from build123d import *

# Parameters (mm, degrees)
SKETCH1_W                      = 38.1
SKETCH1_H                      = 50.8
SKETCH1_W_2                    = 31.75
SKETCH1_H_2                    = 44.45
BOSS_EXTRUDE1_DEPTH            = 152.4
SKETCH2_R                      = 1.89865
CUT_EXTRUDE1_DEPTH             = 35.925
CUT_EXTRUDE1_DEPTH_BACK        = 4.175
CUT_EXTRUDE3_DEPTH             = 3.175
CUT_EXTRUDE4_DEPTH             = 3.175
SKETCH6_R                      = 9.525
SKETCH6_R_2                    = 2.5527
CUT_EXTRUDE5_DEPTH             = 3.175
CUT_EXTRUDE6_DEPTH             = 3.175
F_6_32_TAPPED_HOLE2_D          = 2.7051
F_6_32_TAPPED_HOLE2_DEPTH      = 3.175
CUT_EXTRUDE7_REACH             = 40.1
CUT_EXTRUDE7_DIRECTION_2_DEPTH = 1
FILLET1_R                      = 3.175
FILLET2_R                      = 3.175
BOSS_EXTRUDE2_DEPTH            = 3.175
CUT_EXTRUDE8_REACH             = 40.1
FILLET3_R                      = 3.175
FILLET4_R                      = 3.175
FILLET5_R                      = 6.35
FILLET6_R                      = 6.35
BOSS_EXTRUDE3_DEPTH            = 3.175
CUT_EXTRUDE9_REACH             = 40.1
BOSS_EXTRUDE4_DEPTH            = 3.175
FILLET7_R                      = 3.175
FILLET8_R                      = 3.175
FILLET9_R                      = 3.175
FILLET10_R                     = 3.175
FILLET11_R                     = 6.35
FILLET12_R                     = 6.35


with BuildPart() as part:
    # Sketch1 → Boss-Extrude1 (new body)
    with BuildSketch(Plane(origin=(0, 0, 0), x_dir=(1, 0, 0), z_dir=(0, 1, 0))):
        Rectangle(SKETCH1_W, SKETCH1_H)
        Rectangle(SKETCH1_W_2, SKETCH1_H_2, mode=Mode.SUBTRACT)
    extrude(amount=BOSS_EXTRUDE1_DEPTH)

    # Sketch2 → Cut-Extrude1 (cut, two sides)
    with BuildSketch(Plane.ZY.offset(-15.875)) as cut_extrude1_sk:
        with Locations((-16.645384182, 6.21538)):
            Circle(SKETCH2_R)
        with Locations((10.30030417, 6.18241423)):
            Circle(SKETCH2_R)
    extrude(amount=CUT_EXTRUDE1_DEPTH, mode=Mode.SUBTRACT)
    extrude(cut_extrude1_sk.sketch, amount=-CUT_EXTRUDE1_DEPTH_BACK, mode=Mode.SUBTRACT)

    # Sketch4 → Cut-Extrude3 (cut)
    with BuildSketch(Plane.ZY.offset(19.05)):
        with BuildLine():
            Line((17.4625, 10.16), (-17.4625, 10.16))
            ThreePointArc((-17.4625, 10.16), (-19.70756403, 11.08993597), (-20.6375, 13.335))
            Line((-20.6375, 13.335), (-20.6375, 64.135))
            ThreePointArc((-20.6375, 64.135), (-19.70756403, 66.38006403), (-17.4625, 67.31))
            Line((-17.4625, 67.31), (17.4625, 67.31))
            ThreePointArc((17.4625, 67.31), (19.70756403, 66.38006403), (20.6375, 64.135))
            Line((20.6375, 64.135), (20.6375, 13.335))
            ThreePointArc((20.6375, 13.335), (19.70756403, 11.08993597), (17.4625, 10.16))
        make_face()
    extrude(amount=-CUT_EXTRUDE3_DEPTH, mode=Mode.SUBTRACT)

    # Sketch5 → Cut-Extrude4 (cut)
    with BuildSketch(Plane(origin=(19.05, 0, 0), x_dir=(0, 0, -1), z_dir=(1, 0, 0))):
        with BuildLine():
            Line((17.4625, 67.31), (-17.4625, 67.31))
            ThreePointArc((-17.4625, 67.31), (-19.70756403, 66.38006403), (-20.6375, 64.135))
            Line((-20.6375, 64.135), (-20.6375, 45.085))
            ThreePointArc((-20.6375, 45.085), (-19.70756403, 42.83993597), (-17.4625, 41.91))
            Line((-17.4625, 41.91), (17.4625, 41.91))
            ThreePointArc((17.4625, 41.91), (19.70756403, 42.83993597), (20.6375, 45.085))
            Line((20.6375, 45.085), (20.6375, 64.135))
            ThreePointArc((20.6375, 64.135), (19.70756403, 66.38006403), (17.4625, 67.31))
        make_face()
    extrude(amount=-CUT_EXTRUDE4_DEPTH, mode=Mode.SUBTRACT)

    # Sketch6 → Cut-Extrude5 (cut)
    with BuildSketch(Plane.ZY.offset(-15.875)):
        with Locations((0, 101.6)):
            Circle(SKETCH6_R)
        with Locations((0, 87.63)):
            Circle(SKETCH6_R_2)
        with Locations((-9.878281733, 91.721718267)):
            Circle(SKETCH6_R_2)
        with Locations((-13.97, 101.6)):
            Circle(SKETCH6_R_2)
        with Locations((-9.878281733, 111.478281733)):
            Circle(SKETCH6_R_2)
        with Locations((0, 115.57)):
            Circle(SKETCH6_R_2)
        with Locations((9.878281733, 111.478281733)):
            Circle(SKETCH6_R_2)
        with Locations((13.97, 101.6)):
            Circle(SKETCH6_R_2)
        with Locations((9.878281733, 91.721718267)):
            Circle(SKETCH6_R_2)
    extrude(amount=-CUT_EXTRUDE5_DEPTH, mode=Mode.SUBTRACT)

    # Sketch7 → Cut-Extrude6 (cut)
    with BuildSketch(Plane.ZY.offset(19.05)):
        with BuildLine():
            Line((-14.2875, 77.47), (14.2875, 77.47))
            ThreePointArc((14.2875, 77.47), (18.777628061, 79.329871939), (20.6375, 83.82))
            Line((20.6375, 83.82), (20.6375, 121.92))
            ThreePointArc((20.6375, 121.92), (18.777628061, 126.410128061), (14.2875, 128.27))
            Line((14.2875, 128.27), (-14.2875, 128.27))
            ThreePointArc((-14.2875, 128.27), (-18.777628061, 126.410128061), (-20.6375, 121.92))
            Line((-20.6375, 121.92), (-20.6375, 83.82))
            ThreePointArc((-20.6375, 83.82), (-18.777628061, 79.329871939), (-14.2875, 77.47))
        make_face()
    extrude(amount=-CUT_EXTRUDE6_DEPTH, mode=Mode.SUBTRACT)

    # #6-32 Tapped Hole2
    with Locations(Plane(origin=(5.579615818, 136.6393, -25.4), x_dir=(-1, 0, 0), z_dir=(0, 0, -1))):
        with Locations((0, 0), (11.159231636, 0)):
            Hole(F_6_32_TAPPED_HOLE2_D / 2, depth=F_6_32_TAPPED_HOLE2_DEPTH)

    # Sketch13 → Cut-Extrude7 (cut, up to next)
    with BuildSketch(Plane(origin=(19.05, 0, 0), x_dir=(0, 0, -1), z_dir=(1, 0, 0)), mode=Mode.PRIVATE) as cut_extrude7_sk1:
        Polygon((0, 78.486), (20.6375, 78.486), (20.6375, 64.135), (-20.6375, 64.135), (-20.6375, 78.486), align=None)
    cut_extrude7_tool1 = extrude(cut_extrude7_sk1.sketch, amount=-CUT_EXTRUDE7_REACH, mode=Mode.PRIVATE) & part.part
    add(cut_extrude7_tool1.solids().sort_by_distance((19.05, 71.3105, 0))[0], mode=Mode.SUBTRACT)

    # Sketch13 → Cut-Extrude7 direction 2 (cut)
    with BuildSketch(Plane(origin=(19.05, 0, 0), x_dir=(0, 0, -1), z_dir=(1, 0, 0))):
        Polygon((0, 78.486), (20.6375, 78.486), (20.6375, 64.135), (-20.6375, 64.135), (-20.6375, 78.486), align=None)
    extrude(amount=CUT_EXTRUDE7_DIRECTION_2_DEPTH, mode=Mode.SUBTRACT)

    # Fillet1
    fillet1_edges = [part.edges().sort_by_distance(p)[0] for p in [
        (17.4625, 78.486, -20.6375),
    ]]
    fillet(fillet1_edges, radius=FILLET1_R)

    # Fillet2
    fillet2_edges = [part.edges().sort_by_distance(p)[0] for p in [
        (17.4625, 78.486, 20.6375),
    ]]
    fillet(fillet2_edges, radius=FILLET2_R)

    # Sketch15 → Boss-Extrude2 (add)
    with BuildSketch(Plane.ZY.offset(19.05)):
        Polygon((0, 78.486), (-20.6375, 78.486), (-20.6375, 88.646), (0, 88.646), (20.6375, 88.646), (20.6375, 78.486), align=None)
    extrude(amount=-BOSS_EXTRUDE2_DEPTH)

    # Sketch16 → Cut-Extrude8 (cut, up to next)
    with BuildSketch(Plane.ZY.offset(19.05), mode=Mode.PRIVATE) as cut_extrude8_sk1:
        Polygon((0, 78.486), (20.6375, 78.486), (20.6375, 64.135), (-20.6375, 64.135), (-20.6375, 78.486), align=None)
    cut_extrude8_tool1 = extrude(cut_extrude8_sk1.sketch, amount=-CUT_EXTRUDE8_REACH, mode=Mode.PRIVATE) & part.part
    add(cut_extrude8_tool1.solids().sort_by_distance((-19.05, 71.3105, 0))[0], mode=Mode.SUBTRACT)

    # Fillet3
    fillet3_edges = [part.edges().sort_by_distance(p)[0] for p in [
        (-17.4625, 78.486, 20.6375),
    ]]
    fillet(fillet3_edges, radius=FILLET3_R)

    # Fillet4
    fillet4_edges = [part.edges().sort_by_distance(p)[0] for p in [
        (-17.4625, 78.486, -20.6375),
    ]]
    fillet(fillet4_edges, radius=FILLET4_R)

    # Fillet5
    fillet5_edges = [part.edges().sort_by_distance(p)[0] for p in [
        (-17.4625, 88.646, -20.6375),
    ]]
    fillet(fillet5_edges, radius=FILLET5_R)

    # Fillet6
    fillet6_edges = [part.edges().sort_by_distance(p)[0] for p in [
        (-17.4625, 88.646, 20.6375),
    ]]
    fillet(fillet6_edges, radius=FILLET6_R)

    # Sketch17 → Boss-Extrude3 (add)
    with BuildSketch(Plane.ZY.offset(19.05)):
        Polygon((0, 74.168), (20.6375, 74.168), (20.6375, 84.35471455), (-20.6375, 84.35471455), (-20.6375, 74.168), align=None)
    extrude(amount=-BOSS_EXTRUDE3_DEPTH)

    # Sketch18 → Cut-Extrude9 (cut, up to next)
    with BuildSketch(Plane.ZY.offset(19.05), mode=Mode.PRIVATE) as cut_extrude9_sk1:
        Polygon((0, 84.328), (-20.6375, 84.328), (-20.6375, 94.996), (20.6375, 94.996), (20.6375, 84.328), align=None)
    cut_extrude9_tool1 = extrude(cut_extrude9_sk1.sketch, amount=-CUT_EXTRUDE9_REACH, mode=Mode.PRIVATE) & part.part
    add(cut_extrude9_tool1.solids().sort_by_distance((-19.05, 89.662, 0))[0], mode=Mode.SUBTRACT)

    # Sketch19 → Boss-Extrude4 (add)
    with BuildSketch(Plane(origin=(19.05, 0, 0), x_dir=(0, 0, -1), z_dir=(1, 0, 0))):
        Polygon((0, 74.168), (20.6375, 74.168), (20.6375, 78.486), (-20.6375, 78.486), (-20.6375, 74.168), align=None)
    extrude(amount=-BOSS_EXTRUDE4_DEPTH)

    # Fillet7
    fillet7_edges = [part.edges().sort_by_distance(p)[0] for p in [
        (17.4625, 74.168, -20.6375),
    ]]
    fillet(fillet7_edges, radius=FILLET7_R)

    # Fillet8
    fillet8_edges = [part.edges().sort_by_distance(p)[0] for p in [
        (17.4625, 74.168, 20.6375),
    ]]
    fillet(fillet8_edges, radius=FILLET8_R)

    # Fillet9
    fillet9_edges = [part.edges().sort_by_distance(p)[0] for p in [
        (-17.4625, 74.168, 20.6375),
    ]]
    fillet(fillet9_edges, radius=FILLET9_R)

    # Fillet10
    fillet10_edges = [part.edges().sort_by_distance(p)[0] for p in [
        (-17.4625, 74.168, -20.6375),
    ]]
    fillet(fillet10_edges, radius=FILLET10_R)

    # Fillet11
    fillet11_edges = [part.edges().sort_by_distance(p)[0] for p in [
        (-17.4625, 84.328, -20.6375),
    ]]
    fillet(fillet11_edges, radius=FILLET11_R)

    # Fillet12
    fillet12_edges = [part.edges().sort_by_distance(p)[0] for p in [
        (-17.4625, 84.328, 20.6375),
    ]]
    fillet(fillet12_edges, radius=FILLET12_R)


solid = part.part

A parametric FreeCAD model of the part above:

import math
import FreeCAD as App
import Part
import Sketcher

V = App.Vector
Q = App.Units.Quantity


def edges_at(feature, points):
    """Names of the edges that pass closest to the given points."""
    edges = feature.Shape.Edges
    near = lambda p: min(range(len(edges)), key=lambda i: edges[i].distToShape(Part.Vertex(*p))[0])
    return sorted({f"Edge{near(p) + 1}" for p in points})


def add_polygon(sketch, points):
    """Adds a closed chain of lines whose ends are joined by coincident constraints."""
    first, n = sketch.GeometryCount, len(points)
    for a, b in zip(points, points[1:] + points[:1]):
        sketch.addGeometry(Part.LineSegment(App.Vector(*a, 0), App.Vector(*b, 0)), False)
    for i in range(n):
        sketch.addConstraint(Sketcher.Constraint("Coincident", first + i, 2, first + (i + 1) % n, 1))

doc = App.newDocument("Part")
body = doc.addObject("PartDesign::Body", "Body")

# Sketch on XZ plane
sketch1 = doc.addObject("Sketcher::SketchObject", "Sketch")
body.addObject(sketch1)
sketch1.AttachmentSupport = (doc.XZ_Plane, [""])
sketch1.MapMode = "FlatFace"
add_polygon(sketch1, [(-19.05, -25.4), (-19.05, 25.4), (19.05, 25.4), (19.05, -25.4)])  # lines 0-3
add_polygon(sketch1, [(15.875, 22.225), (-15.875, 22.225), (-15.875, -22.225), (15.875, -22.225)])  # lines 4-7
sketch1.addConstraint(Sketcher.Constraint("Vertical", 0))
sketch1.addConstraint(Sketcher.Constraint("Horizontal", 1))
sketch1.addConstraint(Sketcher.Constraint("Vertical", 2))
sketch1.addConstraint(Sketcher.Constraint("Horizontal", 3))
sketch1.addConstraint(Sketcher.Constraint("Horizontal", 4))
sketch1.addConstraint(Sketcher.Constraint("Vertical", 5))
sketch1.addConstraint(Sketcher.Constraint("Horizontal", 6))
sketch1.addConstraint(Sketcher.Constraint("Vertical", 7))
sketch1.addConstraint(Sketcher.Constraint("Symmetric", 0, 2, 2, 2, -1, 1))
sketch1.addConstraint(Sketcher.Constraint("Symmetric", 4, 2, 6, 2, -1, 1))
sketch1.addConstraint(Sketcher.Constraint("DistanceY", 0, 1, 0, 2, Q("2 in")))
sketch1.addConstraint(Sketcher.Constraint("DistanceX", 1, 1, 1, 2, Q("1.5 in")))
sketch1.addConstraint(Sketcher.Constraint("DistanceX", 4, 2, 4, 1, Q("1.25 in")))
sketch1.addConstraint(Sketcher.Constraint("DistanceY", 5, 2, 5, 1, Q("1.75 in")))
pad1 = doc.addObject("PartDesign::Pad", "Pad")
body.addObject(pad1)
pad1.Profile = sketch1
pad1.Length = Q("6 in")
pad1.Reversed = True

# Sketch on YZ plane
sketch2 = doc.addObject("Sketcher::SketchObject", "Sketch001")
body.addObject(sketch2)
sketch2.AttachmentSupport = (doc.YZ_Plane, [""])
sketch2.MapMode = "FlatFace"
sketch2.AttachmentOffset = App.Placement(V(0, 0, 0.625 * 25.4), App.Rotation())
sketch2.addGeometry(Part.Circle(V(6.21538, -16.645384, 0), V(0, 0, 1), 1.89865), False)
sketch2.addGeometry(Part.Circle(V(6.182414, 10.300304, 0), V(0, 0, 1), 1.89865), False)
sketch2.addConstraint(Sketcher.Constraint("Equal", 0, 1))
sketch2.addConstraint(Sketcher.Constraint("Diameter", 0, Q("0.1495 in")))
sketch2.addConstraint(Sketcher.Constraint("DistanceX", -1, 1, 0, 3, Q("0.2447 in")))
sketch2.addConstraint(Sketcher.Constraint("DistanceY", 0, 3, 1, 3, 26.945688))
sketch2.addConstraint(Sketcher.Constraint("DistanceY", 0, 3, -1, 1, 16.645384))
sketch2.addConstraint(Sketcher.Constraint("DistanceX", -1, 1, 1, 3, 6.182414))
pocket1 = doc.addObject("PartDesign::Pocket", "Pocket")
body.addObject(pocket1)
pocket1.Profile = sketch2
pocket1.Type = "ThroughAll"
pocket1.Midplane = True

# Sketch on YZ plane
sketch3 = doc.addObject("Sketcher::SketchObject", "Sketch002")
body.addObject(sketch3)
sketch3.AttachmentSupport = (doc.YZ_Plane, [""])
sketch3.MapMode = "FlatFace"
sketch3.AttachmentOffset = App.Placement(V(0, 0, -0.75 * 25.4), App.Rotation())
sketch3.addGeometry(Part.LineSegment(V(10.16, -17.4625, 0), V(10.16, 17.4625, 0)), False)
sketch3.addGeometry(Part.ArcOfCircle(Part.Circle(V(13.335, 17.4625, 0), V(0, 0, 1), 3.175), math.radians(90), math.radians(180)), False)
sketch3.addGeometry(Part.LineSegment(V(13.335, 20.6375, 0), V(64.135, 20.6375, 0)), False)
sketch3.addGeometry(Part.ArcOfCircle(Part.Circle(V(64.135, 17.4625, 0), V(0, 0, 1), 3.175), math.radians(0), math.radians(90)), False)
sketch3.addGeometry(Part.LineSegment(V(67.31, 17.4625, 0), V(67.31, -17.4625, 0)), False)
sketch3.addGeometry(Part.ArcOfCircle(Part.Circle(V(64.135, -17.4625, 0), V(0, 0, 1), 3.175), math.radians(-90), math.radians(0)), False)
sketch3.addGeometry(Part.LineSegment(V(64.135, -20.6375, 0), V(13.335, -20.6375, 0)), False)
sketch3.addGeometry(Part.ArcOfCircle(Part.Circle(V(13.335, -17.4625, 0), V(0, 0, 1), 3.175), math.radians(-180), math.radians(-90)), False)
sketch3.addConstraint(Sketcher.Constraint("Tangent", 0, 2, 1, 2))
sketch3.addConstraint(Sketcher.Constraint("Tangent", 1, 1, 2, 1))
sketch3.addConstraint(Sketcher.Constraint("Tangent", 2, 2, 3, 2))
sketch3.addConstraint(Sketcher.Constraint("Tangent", 3, 1, 4, 1))
sketch3.addConstraint(Sketcher.Constraint("Tangent", 4, 2, 5, 2))
sketch3.addConstraint(Sketcher.Constraint("Tangent", 5, 1, 6, 1))
sketch3.addConstraint(Sketcher.Constraint("Tangent", 6, 2, 7, 2))
sketch3.addConstraint(Sketcher.Constraint("Tangent", 7, 1, 0, 1))
sketch3.addConstraint(Sketcher.Constraint("Vertical", 0))
sketch3.addConstraint(Sketcher.Constraint("Horizontal", 2))
sketch3.addConstraint(Sketcher.Constraint("Vertical", 4))
sketch3.addConstraint(Sketcher.Constraint("Horizontal", 6))
sketch3.addConstraint(Sketcher.Constraint("Equal", 1, 3))
sketch3.addConstraint(Sketcher.Constraint("Equal", 3, 5))
sketch3.addConstraint(Sketcher.Constraint("Equal", 5, 7))
sketch3.addConstraint(Sketcher.Constraint("DistanceX", 2, 1, 2, 2, Q("2 in")))
sketch3.addConstraint(Sketcher.Constraint("Radius", 1, Q("0.125 in")))
sketch3.addConstraint(Sketcher.Constraint("DistanceX", -1, 1, 0, 2, Q("0.4 in")))
sketch3.addConstraint(Sketcher.Constraint("DistanceY", 7, 3, 1, 1, Q("1.5 in")))
sketch3.addConstraint(Sketcher.Constraint("DistanceY", -1, 1, 1, 3, Q("0.6875 in")))
pocket2 = doc.addObject("PartDesign::Pocket", "Pocket001")
body.addObject(pocket2)
pocket2.Profile = sketch3
pocket2.Length = Q("0.125 in")
pocket2.Reversed = True

# Sketch on YZ plane
sketch4 = doc.addObject("Sketcher::SketchObject", "Sketch003")
body.addObject(sketch4)
sketch4.AttachmentSupport = (doc.YZ_Plane, [""])
sketch4.MapMode = "FlatFace"
sketch4.AttachmentOffset = App.Placement(V(0, 0, 0.75 * 25.4), App.Rotation())
sketch4.addGeometry(Part.LineSegment(V(67.31, -17.4625, 0), V(67.31, 17.4625, 0)), False)
sketch4.addGeometry(Part.ArcOfCircle(Part.Circle(V(64.135, 17.4625, 0), V(0, 0, 1), 3.175), math.radians(0), math.radians(90)), False)
sketch4.addGeometry(Part.LineSegment(V(64.135, 20.6375, 0), V(45.085, 20.6375, 0)), False)
sketch4.addGeometry(Part.ArcOfCircle(Part.Circle(V(45.085, 17.4625, 0), V(0, 0, 1), 3.175), math.radians(90), math.radians(180)), False)
sketch4.addGeometry(Part.LineSegment(V(41.91, 17.4625, 0), V(41.91, -17.4625, 0)), False)
sketch4.addGeometry(Part.ArcOfCircle(Part.Circle(V(45.085, -17.4625, 0), V(0, 0, 1), 3.175), math.radians(-180), math.radians(-90)), False)
sketch4.addGeometry(Part.LineSegment(V(45.085, -20.6375, 0), V(64.135, -20.6375, 0)), False)
sketch4.addGeometry(Part.ArcOfCircle(Part.Circle(V(64.135, -17.4625, 0), V(0, 0, 1), 3.175), math.radians(-90), math.radians(0)), False)
sketch4.addConstraint(Sketcher.Constraint("Tangent", 0, 2, 1, 1))
sketch4.addConstraint(Sketcher.Constraint("Tangent", 1, 2, 2, 1))
sketch4.addConstraint(Sketcher.Constraint("Tangent", 2, 2, 3, 1))
sketch4.addConstraint(Sketcher.Constraint("Tangent", 3, 2, 4, 1))
sketch4.addConstraint(Sketcher.Constraint("Tangent", 4, 2, 5, 1))
sketch4.addConstraint(Sketcher.Constraint("Tangent", 5, 2, 6, 1))
sketch4.addConstraint(Sketcher.Constraint("Tangent", 6, 2, 7, 1))
sketch4.addConstraint(Sketcher.Constraint("Tangent", 7, 2, 0, 1))
sketch4.addConstraint(Sketcher.Constraint("Vertical", 0))
sketch4.addConstraint(Sketcher.Constraint("Horizontal", 2))
sketch4.addConstraint(Sketcher.Constraint("Vertical", 4))
sketch4.addConstraint(Sketcher.Constraint("Horizontal", 6))
sketch4.addConstraint(Sketcher.Constraint("Equal", 1, 3))
sketch4.addConstraint(Sketcher.Constraint("Equal", 3, 5))
sketch4.addConstraint(Sketcher.Constraint("Equal", 5, 7))
sketch4.addConstraint(Sketcher.Constraint("Radius", 1, Q("0.125 in")))
sketch4.addConstraint(Sketcher.Constraint("DistanceX", 3, 2, 0, 2, Q("1 in")))
sketch4.addConstraint(Sketcher.Constraint("DistanceY", 7, 3, 1, 2, Q("1.5 in")))
sketch4.addConstraint(Sketcher.Constraint("DistanceX", -1, 1, 0, 2, Q("2.65 in")))
sketch4.addConstraint(Sketcher.Constraint("DistanceY", -1, 1, 1, 3, Q("0.6875 in")))
pocket3 = doc.addObject("PartDesign::Pocket", "Pocket002")
body.addObject(pocket3)
pocket3.Profile = sketch4
pocket3.Length = Q("0.125 in")

# Sketch on YZ plane
sketch5 = doc.addObject("Sketcher::SketchObject", "Sketch004")
body.addObject(sketch5)
sketch5.AttachmentSupport = (doc.YZ_Plane, [""])
sketch5.MapMode = "FlatFace"
sketch5.AttachmentOffset = App.Placement(V(0, 0, 0.625 * 25.4), App.Rotation())
sketch5.addGeometry(Part.Circle(V(101.6, 0, 0), V(0, 0, 1), 9.525), False)
sketch5.addGeometry(Part.Circle(V(87.63, 0, 0), V(0, 0, 1), 2.5527), False)
sketch5.addGeometry(Part.Circle(V(91.721718, -9.878282, 0), V(0, 0, 1), 2.5527), False)
sketch5.addGeometry(Part.Circle(V(101.6, -13.97, 0), V(0, 0, 1), 2.5527), False)
sketch5.addGeometry(Part.Circle(V(111.478282, -9.878282, 0), V(0, 0, 1), 2.5527), False)
sketch5.addGeometry(Part.Circle(V(115.57, 0, 0), V(0, 0, 1), 2.5527), False)
sketch5.addGeometry(Part.Circle(V(111.478282, 9.878282, 0), V(0, 0, 1), 2.5527), False)
sketch5.addGeometry(Part.Circle(V(101.6, 13.97, 0), V(0, 0, 1), 2.5527), False)
sketch5.addGeometry(Part.Circle(V(91.721718, 9.878282, 0), V(0, 0, 1), 2.5527), False)
sketch5.addConstraint(Sketcher.Constraint("Equal", 1, 2))
sketch5.addConstraint(Sketcher.Constraint("Equal", 2, 3))
sketch5.addConstraint(Sketcher.Constraint("Equal", 3, 4))
sketch5.addConstraint(Sketcher.Constraint("Equal", 4, 5))
sketch5.addConstraint(Sketcher.Constraint("Equal", 5, 6))
sketch5.addConstraint(Sketcher.Constraint("Equal", 6, 7))
sketch5.addConstraint(Sketcher.Constraint("Equal", 7, 8))
sketch5.addConstraint(Sketcher.Constraint("Symmetric", 4, 3, 6, 3, -1))
sketch5.addConstraint(Sketcher.Constraint("Symmetric", 3, 3, 7, 3, -1))
sketch5.addConstraint(Sketcher.Constraint("Symmetric", 2, 3, 8, 3, -1))
sketch5.addConstraint(Sketcher.Constraint("PointOnObject", 0, 3, -1))
sketch5.addConstraint(Sketcher.Constraint("PointOnObject", 1, 3, -1))
sketch5.addConstraint(Sketcher.Constraint("PointOnObject", 5, 3, -1))
sketch5.addConstraint(Sketcher.Constraint("Horizontal", 2, 3, 4, 3))
sketch5.addConstraint(Sketcher.Constraint("Vertical", 0, 3, 3, 3))
sketch5.addConstraint(Sketcher.Constraint("Diameter", 0, Q("0.75 in")))
sketch5.addConstraint(Sketcher.Constraint("Diameter", 1, Q("0.201 in")))
sketch5.addConstraint(Sketcher.Constraint("DistanceX", -1, 1, 0, 3, Q("4 in")))
sketch5.addConstraint(Sketcher.Constraint("DistanceX", 1, 3, 5, 3, Q("1.1 in")))
sketch5.addConstraint(Sketcher.Constraint("DistanceX", -1, 1, 1, 3, Q("3.45 in")))
sketch5.addConstraint(Sketcher.Constraint("DistanceY", 3, 3, -1, 1, Q("0.55 in")))
sketch5.addConstraint(Sketcher.Constraint("DistanceX", -1, 1, 2, 3, 91.721718))
sketch5.addConstraint(Sketcher.Constraint("DistanceY", 2, 3, -1, 1, 9.878282))
sketch5.addConstraint(Sketcher.Constraint("DistanceX", -1, 1, 4, 3, 111.478282))
pocket4 = doc.addObject("PartDesign::Pocket", "Pocket003")
body.addObject(pocket4)
pocket4.Profile = sketch5
pocket4.Length = Q("0.125 in")
pocket4.Reversed = True

# Sketch on YZ plane
sketch6 = doc.addObject("Sketcher::SketchObject", "Sketch005")
body.addObject(sketch6)
sketch6.AttachmentSupport = (doc.YZ_Plane, [""])
sketch6.MapMode = "FlatFace"
sketch6.AttachmentOffset = App.Placement(V(0, 0, -0.75 * 25.4), App.Rotation())
sketch6.addGeometry(Part.LineSegment(V(77.47, -14.2875, 0), V(77.47, 14.2875, 0)), False)
sketch6.addGeometry(Part.ArcOfCircle(Part.Circle(V(83.82, 14.2875, 0), V(0, 0, 1), 6.35), math.radians(90), math.radians(180)), False)
sketch6.addGeometry(Part.LineSegment(V(83.82, 20.6375, 0), V(121.92, 20.6375, 0)), False)
sketch6.addGeometry(Part.ArcOfCircle(Part.Circle(V(121.92, 14.2875, 0), V(0, 0, 1), 6.35), math.radians(0), math.radians(90)), False)
sketch6.addGeometry(Part.LineSegment(V(128.27, 14.2875, 0), V(128.27, -14.2875, 0)), False)
sketch6.addGeometry(Part.ArcOfCircle(Part.Circle(V(121.92, -14.2875, 0), V(0, 0, 1), 6.35), math.radians(-90), math.radians(0)), False)
sketch6.addGeometry(Part.LineSegment(V(121.92, -20.6375, 0), V(83.82, -20.6375, 0)), False)
sketch6.addGeometry(Part.ArcOfCircle(Part.Circle(V(83.82, -14.2875, 0), V(0, 0, 1), 6.35), math.radians(180), math.radians(270)), False)
sketch6.addConstraint(Sketcher.Constraint("Tangent", 0, 2, 1, 2))
sketch6.addConstraint(Sketcher.Constraint("Tangent", 1, 1, 2, 1))
sketch6.addConstraint(Sketcher.Constraint("Tangent", 2, 2, 3, 2))
sketch6.addConstraint(Sketcher.Constraint("Tangent", 3, 1, 4, 1))
sketch6.addConstraint(Sketcher.Constraint("Tangent", 4, 2, 5, 2))
sketch6.addConstraint(Sketcher.Constraint("Tangent", 5, 1, 6, 1))
sketch6.addConstraint(Sketcher.Constraint("Tangent", 6, 2, 7, 2))
sketch6.addConstraint(Sketcher.Constraint("Tangent", 7, 1, 0, 1))
sketch6.addConstraint(Sketcher.Constraint("Vertical", 0))
sketch6.addConstraint(Sketcher.Constraint("Horizontal", 2))
sketch6.addConstraint(Sketcher.Constraint("Vertical", 4))
sketch6.addConstraint(Sketcher.Constraint("Horizontal", 6))
sketch6.addConstraint(Sketcher.Constraint("Equal", 1, 3))
sketch6.addConstraint(Sketcher.Constraint("Equal", 3, 5))
sketch6.addConstraint(Sketcher.Constraint("Equal", 5, 7))
sketch6.addConstraint(Sketcher.Constraint("Radius", 1, Q("0.25 in")))
sketch6.addConstraint(Sketcher.Constraint("DistanceX", 2, 1, 2, 2, Q("1.5 in")))
sketch6.addConstraint(Sketcher.Constraint("DistanceX", -1, 1, 1, 3, Q("3.3 in")))
sketch6.addConstraint(Sketcher.Constraint("DistanceY", 0, 1, 0, 2, Q("1.125 in")))
sketch6.addConstraint(Sketcher.Constraint("DistanceY", -1, 1, 1, 3, Q("0.5625 in")))
pocket5 = doc.addObject("PartDesign::Pocket", "Pocket004")
body.addObject(pocket5)
pocket5.Profile = sketch6
pocket5.Length = Q("0.125 in")
pocket5.Reversed = True

# Sketch on XY plane
sketch7 = doc.addObject("Sketcher::SketchObject", "Sketch006")
body.addObject(sketch7)
sketch7.AttachmentSupport = (doc.XY_Plane, [""])
sketch7.MapMode = "FlatFace"
sketch7.AttachmentOffset = App.Placement(V(0, 0, -1 * 25.4), App.Rotation())
sketch7.addGeometry(Part.Circle(V(5.579616, 136.6393, 0), V(0, 0, 1), 1.35255), False)
sketch7.addGeometry(Part.Circle(V(-5.579616, 136.6393, 0), V(0, 0, 1), 1.35255), False)
sketch7.addConstraint(Sketcher.Constraint("Equal", 0, 1))
sketch7.addConstraint(Sketcher.Constraint("Symmetric", 0, 3, 1, 3, -2))
sketch7.addConstraint(Sketcher.Constraint("Diameter", 0, Q("0.1065 in")))
sketch7.addConstraint(Sketcher.Constraint("DistanceY", -1, 1, 0, 3, Q("5.3795 in")))
sketch7.addConstraint(Sketcher.Constraint("DistanceX", 1, 3, 0, 3, 11.159232))
doc.recompute()
hole = doc.addObject("PartDesign::Hole", "Hole")
body.addObject(hole)
hole.Profile = sketch7
hole.ThreadType = "None"
hole.Diameter = Q("0.1065 in")
hole.DepthType = "Dimension"
hole.Depth = Q("0.125 in")
hole.DrillPoint = "Flat"
hole.Reversed = True

# Sketch on YZ plane
sketch8 = doc.addObject("Sketcher::SketchObject", "Sketch007")
body.addObject(sketch8)
sketch8.AttachmentSupport = (doc.YZ_Plane, [""])
sketch8.MapMode = "FlatFace"
sketch8.AttachmentOffset = App.Placement(V(0, 0, 0.75 * 25.4), App.Rotation())
add_polygon(sketch8, [(78.486, -20.6375), (78.486, 20.6375), (64.135, 20.6375), (64.135, -20.6375)])  # lines 0-3
sketch8.addConstraint(Sketcher.Constraint("Vertical", 0))
sketch8.addConstraint(Sketcher.Constraint("Horizontal", 1))
sketch8.addConstraint(Sketcher.Constraint("Vertical", 2))
sketch8.addConstraint(Sketcher.Constraint("Horizontal", 3))
sketch8.addConstraint(Sketcher.Constraint("DistanceX", 1, 2, 1, 1, Q("0.565 in")))
sketch8.addConstraint(Sketcher.Constraint("DistanceY", 0, 1, 0, 2, Q("1.625 in")))
sketch8.addConstraint(Sketcher.Constraint("DistanceX", -1, 1, 0, 2, Q("3.09 in")))
sketch8.addConstraint(Sketcher.Constraint("DistanceY", -1, 1, 0, 2, Q("0.8125 in")))
pocket6 = doc.addObject("PartDesign::Pocket", "Pocket005")
body.addObject(pocket6)
pocket6.Profile = sketch8
pocket6.Type = "UpToFirst"

# Sketch on YZ plane
sketch9 = doc.addObject("Sketcher::SketchObject", "Sketch008")
body.addObject(sketch9)
sketch9.AttachmentSupport = (doc.YZ_Plane, [""])
sketch9.MapMode = "FlatFace"
sketch9.AttachmentOffset = App.Placement(V(0, 0, 0.75 * 25.4), App.Rotation())
add_polygon(sketch9, [(78.486, -20.6375), (78.486, 20.6375), (64.135, 20.6375), (64.135, -20.6375)])  # lines 0-3
sketch9.addConstraint(Sketcher.Constraint("Vertical", 0))
sketch9.addConstraint(Sketcher.Constraint("Horizontal", 1))
sketch9.addConstraint(Sketcher.Constraint("Vertical", 2))
sketch9.addConstraint(Sketcher.Constraint("Horizontal", 3))
sketch9.addConstraint(Sketcher.Constraint("DistanceX", 1, 2, 1, 1, Q("0.565 in")))
sketch9.addConstraint(Sketcher.Constraint("DistanceY", 0, 1, 0, 2, Q("1.625 in")))
sketch9.addConstraint(Sketcher.Constraint("DistanceX", -1, 1, 0, 2, Q("3.09 in")))
sketch9.addConstraint(Sketcher.Constraint("DistanceY", -1, 1, 0, 2, Q("0.8125 in")))
pocket7 = doc.addObject("PartDesign::Pocket", "Pocket006")
body.addObject(pocket7)
pocket7.Profile = sketch9
pocket7.Length = 1
pocket7.Reversed = True
doc.recompute()

fillet = doc.addObject("PartDesign::Fillet", "Fillet")
body.addObject(fillet)
fillet.Base = (pocket7, edges_at(pocket7, [(17.462, 78.486, -20.637)]))
fillet.Radius = Q("0.125 in")
doc.recompute()

fillet2 = doc.addObject("PartDesign::Fillet", "Fillet001")
body.addObject(fillet2)
fillet2.Base = (fillet, edges_at(fillet, [(17.462, 78.486, 20.637)]))
fillet2.Radius = Q("0.125 in")

# Sketch on YZ plane
sketch10 = doc.addObject("Sketcher::SketchObject", "Sketch009")
body.addObject(sketch10)
sketch10.AttachmentSupport = (doc.YZ_Plane, [""])
sketch10.MapMode = "FlatFace"
sketch10.AttachmentOffset = App.Placement(V(0, 0, -0.75 * 25.4), App.Rotation())
add_polygon(sketch10, [(78.486, -20.6375), (78.486, 20.6375), (88.646, 20.6375), (88.646, -20.6375)])  # lines 0-3
sketch10.addConstraint(Sketcher.Constraint("Vertical", 0))
sketch10.addConstraint(Sketcher.Constraint("Horizontal", 1))
sketch10.addConstraint(Sketcher.Constraint("Vertical", 2))
sketch10.addConstraint(Sketcher.Constraint("Horizontal", 3))
sketch10.addConstraint(Sketcher.Constraint("DistanceX", 1, 1, 1, 2, Q("0.4 in")))
sketch10.addConstraint(Sketcher.Constraint("DistanceY", 0, 1, 0, 2, Q("1.625 in")))
sketch10.addConstraint(Sketcher.Constraint("DistanceX", -1, 1, 0, 2, Q("3.09 in")))
sketch10.addConstraint(Sketcher.Constraint("DistanceY", -1, 1, 0, 2, Q("0.8125 in")))
pad2 = doc.addObject("PartDesign::Pad", "Pad001")
body.addObject(pad2)
pad2.Profile = sketch10
pad2.Length = Q("0.125 in")

# Sketch on YZ plane
sketch11 = doc.addObject("Sketcher::SketchObject", "Sketch010")
body.addObject(sketch11)
sketch11.AttachmentSupport = (doc.YZ_Plane, [""])
sketch11.MapMode = "FlatFace"
sketch11.AttachmentOffset = App.Placement(V(0, 0, -0.75 * 25.4), App.Rotation())
add_polygon(sketch11, [(78.486, 20.6375), (78.486, -20.6375), (64.135, -20.6375), (64.135, 20.6375)])  # lines 0-3
sketch11.addConstraint(Sketcher.Constraint("Vertical", 0))
sketch11.addConstraint(Sketcher.Constraint("Horizontal", 1))
sketch11.addConstraint(Sketcher.Constraint("Vertical", 2))
sketch11.addConstraint(Sketcher.Constraint("Horizontal", 3))
sketch11.addConstraint(Sketcher.Constraint("DistanceX", 1, 2, 1, 1, Q("0.565 in")))
sketch11.addConstraint(Sketcher.Constraint("DistanceY", 0, 2, 0, 1, Q("1.625 in")))
sketch11.addConstraint(Sketcher.Constraint("DistanceX", -1, 1, 0, 2, Q("3.09 in")))
sketch11.addConstraint(Sketcher.Constraint("DistanceY", 0, 2, -1, 1, Q("0.8125 in")))
pocket8 = doc.addObject("PartDesign::Pocket", "Pocket007")
body.addObject(pocket8)
pocket8.Profile = sketch11
pocket8.Type = "UpToFirst"
pocket8.Reversed = True
doc.recompute()

fillet3 = doc.addObject("PartDesign::Fillet", "Fillet002")
body.addObject(fillet3)
fillet3.Base = (pocket8, edges_at(pocket8, [(-17.462, 78.486, 20.637)]))
fillet3.Radius = Q("0.125 in")
doc.recompute()

fillet4 = doc.addObject("PartDesign::Fillet", "Fillet003")
body.addObject(fillet4)
fillet4.Base = (fillet3, edges_at(fillet3, [(-17.462, 78.486, -20.637)]))
fillet4.Radius = Q("0.125 in")
doc.recompute()

fillet5 = doc.addObject("PartDesign::Fillet", "Fillet004")
body.addObject(fillet5)
fillet5.Base = (fillet4, edges_at(fillet4, [(-17.462, 88.646, -20.637)]))
fillet5.Radius = Q("0.25 in")
doc.recompute()

fillet6 = doc.addObject("PartDesign::Fillet", "Fillet005")
body.addObject(fillet6)
fillet6.Base = (fillet5, edges_at(fillet5, [(-17.462, 88.646, 20.637)]))
fillet6.Radius = Q("0.25 in")

# Sketch on YZ plane
sketch12 = doc.addObject("Sketcher::SketchObject", "Sketch011")
body.addObject(sketch12)
sketch12.AttachmentSupport = (doc.YZ_Plane, [""])
sketch12.MapMode = "FlatFace"
sketch12.AttachmentOffset = App.Placement(V(0, 0, -0.75 * 25.4), App.Rotation())
add_polygon(sketch12, [(74.168, 20.6375), (84.354715, 20.6375), (84.354715, -20.6375), (74.168, -20.6375)])  # lines 0-3
sketch12.addConstraint(Sketcher.Constraint("Horizontal", 0))
sketch12.addConstraint(Sketcher.Constraint("Vertical", 1))
sketch12.addConstraint(Sketcher.Constraint("Horizontal", 2))
sketch12.addConstraint(Sketcher.Constraint("Vertical", 3))
sketch12.addConstraint(Sketcher.Constraint("DistanceY", 1, 2, 1, 1, Q("1.625 in")))
sketch12.addConstraint(Sketcher.Constraint("DistanceX", -1, 1, 2, 2, Q("2.92 in")))
sketch12.addConstraint(Sketcher.Constraint("DistanceY", -1, 1, 0, 2, Q("0.8125 in")))
sketch12.addConstraint(Sketcher.Constraint("DistanceX", 0, 1, 0, 2, 10.186715))
pad3 = doc.addObject("PartDesign::Pad", "Pad002")
body.addObject(pad3)
pad3.Profile = sketch12
pad3.Length = Q("0.125 in")

# Sketch on YZ plane
sketch13 = doc.addObject("Sketcher::SketchObject", "Sketch012")
body.addObject(sketch13)
sketch13.AttachmentSupport = (doc.YZ_Plane, [""])
sketch13.MapMode = "FlatFace"
sketch13.AttachmentOffset = App.Placement(V(0, 0, -0.75 * 25.4), App.Rotation())
add_polygon(sketch13, [(84.328, -20.6375), (84.328, 20.6375), (94.996, 20.6375), (94.996, -20.6375)])  # lines 0-3
sketch13.addConstraint(Sketcher.Constraint("Vertical", 0))
sketch13.addConstraint(Sketcher.Constraint("Horizontal", 1))
sketch13.addConstraint(Sketcher.Constraint("Vertical", 2))
sketch13.addConstraint(Sketcher.Constraint("Horizontal", 3))
sketch13.addConstraint(Sketcher.Constraint("DistanceX", 1, 1, 1, 2, Q("0.42 in")))
sketch13.addConstraint(Sketcher.Constraint("DistanceY", 0, 1, 0, 2, Q("1.625 in")))
sketch13.addConstraint(Sketcher.Constraint("DistanceX", -1, 1, 0, 2, Q("3.32 in")))
sketch13.addConstraint(Sketcher.Constraint("DistanceY", -1, 1, 0, 2, Q("0.8125 in")))
pocket9 = doc.addObject("PartDesign::Pocket", "Pocket008")
body.addObject(pocket9)
pocket9.Profile = sketch13
pocket9.Length = Q("0.125 in")
pocket9.Reversed = True

# Sketch on YZ plane
sketch14 = doc.addObject("Sketcher::SketchObject", "Sketch013")
body.addObject(sketch14)
sketch14.AttachmentSupport = (doc.YZ_Plane, [""])
sketch14.MapMode = "FlatFace"
sketch14.AttachmentOffset = App.Placement(V(0, 0, 0.75 * 25.4), App.Rotation())
add_polygon(sketch14, [(74.168, -20.6375), (78.486, -20.6375), (78.486, 20.6375), (74.168, 20.6375)])  # lines 0-3
sketch14.addConstraint(Sketcher.Constraint("Horizontal", 0))
sketch14.addConstraint(Sketcher.Constraint("Vertical", 1))
sketch14.addConstraint(Sketcher.Constraint("Horizontal", 2))
sketch14.addConstraint(Sketcher.Constraint("Vertical", 3))
sketch14.addConstraint(Sketcher.Constraint("DistanceX", 0, 1, 0, 2, Q("0.17 in")))
sketch14.addConstraint(Sketcher.Constraint("DistanceY", 1, 1, 1, 2, Q("1.625 in")))
sketch14.addConstraint(Sketcher.Constraint("DistanceX", -1, 1, 0, 2, Q("3.09 in")))
sketch14.addConstraint(Sketcher.Constraint("DistanceY", 0, 2, -1, 1, Q("0.8125 in")))
pad4 = doc.addObject("PartDesign::Pad", "Pad003")
body.addObject(pad4)
pad4.Profile = sketch14
pad4.Length = Q("0.125 in")
pad4.Reversed = True
doc.recompute()

fillet7 = doc.addObject("PartDesign::Fillet", "Fillet006")
body.addObject(fillet7)
fillet7.Base = (pad4, edges_at(pad4, [(17.462, 74.168, -20.637)]))
fillet7.Radius = Q("0.125 in")
doc.recompute()

fillet8 = doc.addObject("PartDesign::Fillet", "Fillet007")
body.addObject(fillet8)
fillet8.Base = (fillet7, edges_at(fillet7, [(17.462, 74.168, 20.637)]))
fillet8.Radius = Q("0.125 in")
doc.recompute()

fillet9 = doc.addObject("PartDesign::Fillet", "Fillet008")
body.addObject(fillet9)
fillet9.Base = (fillet8, edges_at(fillet8, [(-17.462, 74.168, 20.637)]))
fillet9.Radius = Q("0.125 in")
doc.recompute()

fillet10 = doc.addObject("PartDesign::Fillet", "Fillet009")
body.addObject(fillet10)
fillet10.Base = (fillet9, edges_at(fillet9, [(-17.462, 74.168, -20.637)]))
fillet10.Radius = Q("0.125 in")
doc.recompute()

fillet11 = doc.addObject("PartDesign::Fillet", "Fillet010")
body.addObject(fillet11)
fillet11.Base = (fillet10, edges_at(fillet10, [(-17.462, 84.328, -20.637)]))
fillet11.Radius = Q("0.25 in")
doc.recompute()

fillet12 = doc.addObject("PartDesign::Fillet", "Fillet011")
body.addObject(fillet12)
fillet12.Base = (fillet11, edges_at(fillet11, [(-17.462, 84.328, 20.637)]))
fillet12.Radius = Q("0.25 in")

doc.recompute()
